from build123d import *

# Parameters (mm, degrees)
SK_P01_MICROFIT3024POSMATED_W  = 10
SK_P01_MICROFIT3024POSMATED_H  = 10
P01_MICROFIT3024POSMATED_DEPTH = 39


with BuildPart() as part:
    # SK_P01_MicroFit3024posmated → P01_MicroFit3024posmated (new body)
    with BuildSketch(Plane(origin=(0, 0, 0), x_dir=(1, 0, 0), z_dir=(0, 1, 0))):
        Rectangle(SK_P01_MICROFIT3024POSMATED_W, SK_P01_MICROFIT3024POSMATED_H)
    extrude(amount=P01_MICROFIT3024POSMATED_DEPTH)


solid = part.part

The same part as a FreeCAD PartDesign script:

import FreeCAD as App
import Part
import Sketcher
Q = App.Units.Quantity


def add_polygon(sketch, points):
    """Adds a closed chain of lines whose ends are joined by coincident constraints."""
    first, n = sketch.GeometryCount, len(points)
    for a, b in zip(points, points[1:] + points[:1]):
        sketch.addGeometry(Part.LineSegment(App.Vector(*a, 0), App.Vector(*b, 0)), False)
    for i in range(n):
        sketch.addConstraint(Sketcher.Constraint("Coincident", first + i, 2, first + (i + 1) % n, 1))

doc = App.newDocument("Part")
body = doc.addObject("PartDesign::Body", "Body")

# Sketch on XZ plane
sketch1 = body.newObject("Sketcher::SketchObject", "Sketch")
sketch1.AttachmentSupport = (doc.getObject("XZ_Plane"), [""])
sketch1.MapMode = "FlatFace"
add_polygon(sketch1, [(-5, -5), (-5, 5), (5, 5), (5, -5)])  # lines 0-3
sketch1.addConstraint(Sketcher.Constraint("Vertical", 0))
sketch1.addConstraint(Sketcher.Constraint("Horizontal", 1))
sketch1.addConstraint(Sketcher.Constraint("Vertical", 2))
sketch1.addConstraint(Sketcher.Constraint("Horizontal", 3))
sketch1.addConstraint(Sketcher.Constraint("Symmetric", 0, 2, 2, 2, -1, 1))
sketch1.addConstraint(Sketcher.Constraint("Equal", 3, 0))
sketch1.addConstraint(Sketcher.Constraint("DistanceX", 1, 1, 1, 2, Q("10 mm")))
pad1 = body.newObject("PartDesign::Pad", "Pad")
pad1.Profile = sketch1
pad1.Length = 39
pad1.Reversed = True

doc.recompute()
